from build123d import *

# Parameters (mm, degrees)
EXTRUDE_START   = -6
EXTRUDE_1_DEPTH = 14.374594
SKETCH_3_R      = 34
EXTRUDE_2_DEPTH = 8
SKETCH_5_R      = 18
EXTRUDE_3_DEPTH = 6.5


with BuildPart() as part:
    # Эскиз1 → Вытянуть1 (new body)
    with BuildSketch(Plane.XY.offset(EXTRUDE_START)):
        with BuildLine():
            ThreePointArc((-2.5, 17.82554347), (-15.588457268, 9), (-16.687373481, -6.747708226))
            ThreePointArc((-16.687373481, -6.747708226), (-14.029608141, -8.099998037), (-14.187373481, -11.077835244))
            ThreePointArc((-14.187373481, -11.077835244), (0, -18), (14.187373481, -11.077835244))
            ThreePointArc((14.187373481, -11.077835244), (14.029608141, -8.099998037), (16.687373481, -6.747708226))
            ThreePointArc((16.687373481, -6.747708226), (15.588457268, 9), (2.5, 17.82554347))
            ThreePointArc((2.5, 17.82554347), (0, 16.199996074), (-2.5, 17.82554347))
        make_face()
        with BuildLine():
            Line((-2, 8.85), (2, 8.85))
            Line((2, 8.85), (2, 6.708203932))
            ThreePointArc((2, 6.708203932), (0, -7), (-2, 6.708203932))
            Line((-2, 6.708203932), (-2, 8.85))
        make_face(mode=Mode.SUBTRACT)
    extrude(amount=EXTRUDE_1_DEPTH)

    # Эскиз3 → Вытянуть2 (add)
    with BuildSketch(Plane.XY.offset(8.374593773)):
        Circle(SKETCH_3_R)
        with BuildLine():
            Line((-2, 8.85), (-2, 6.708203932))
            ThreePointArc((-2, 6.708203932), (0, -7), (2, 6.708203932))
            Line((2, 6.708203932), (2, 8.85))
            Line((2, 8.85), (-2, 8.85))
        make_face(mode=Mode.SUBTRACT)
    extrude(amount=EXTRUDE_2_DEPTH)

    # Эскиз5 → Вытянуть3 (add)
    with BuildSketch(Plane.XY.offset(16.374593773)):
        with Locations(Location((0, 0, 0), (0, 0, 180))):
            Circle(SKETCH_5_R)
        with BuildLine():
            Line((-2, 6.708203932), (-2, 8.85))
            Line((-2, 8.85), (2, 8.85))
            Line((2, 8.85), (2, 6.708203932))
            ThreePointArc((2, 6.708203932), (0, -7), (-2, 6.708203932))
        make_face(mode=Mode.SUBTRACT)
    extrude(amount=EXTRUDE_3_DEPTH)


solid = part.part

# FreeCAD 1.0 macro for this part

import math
import FreeCAD as App
import Part
import Sketcher
from FreeCAD import Vector

doc = App.newDocument("Part")
body = doc.addObject("PartDesign::Body", "Body")

# Sketch on XY plane
sketch1 = body.newObject("Sketcher::SketchObject", "Sketch")
sketch1.AttachmentSupport = (doc.getObject("XY_Plane"), [""])
sketch1.MapMode = "FlatFace"
sketch1.AttachmentOffset = App.Placement(Vector(0, 0, -6), App.Rotation())
sketch1.addGeometry([
    Part.ArcOfCircle(Part.Circle(Vector(0, 0, 0), Vector(0, 0, 1), 18), math.radians(98), math.radians(202)),  # 0
    Part.ArcOfCircle(Part.Circle(Vector(-16.4, -9.5, 0), Vector(0, 0, 1), 2.7), math.radians(-36), math.radians(96)),  # 1
    Part.ArcOfCircle(Part.Circle(Vector(0, 0, 0), Vector(0, 0, 1), 18), math.radians(-142), math.radians(-38)),  # 2
    Part.ArcOfCircle(Part.Circle(Vector(16.4, -9.5, 0), Vector(0, 0, 1), 2.7), math.radians(84), math.radians(216)),  # 3
    Part.ArcOfCircle(Part.Circle(Vector(0, 0, 0), Vector(0, 0, 1), 18), math.radians(-22), math.radians(82)),  # 4
    Part.ArcOfCircle(Part.Circle(Vector(0, 18.9, 0), Vector(0, 0, 1), 2.7), math.radians(-156), math.radians(-24)),  # 5
    Part.LineSegment(Vector(-2, 6.7, 0), Vector(-2, 8.8, 0)),  # 6
    Part.LineSegment(Vector(-2, 8.8, 0), Vector(2, 8.8, 0)),  # 7
    Part.LineSegment(Vector(2, 8.8, 0), Vector(2, 6.7, 0)),  # 8
    Part.ArcOfCircle(Part.Circle(Vector(0, 0, 0), Vector(0, 0, 1), 7), math.radians(107), math.radians(433)),  # 9
], False)
sketch1.addConstraint([
    Sketcher.Constraint("Coincident", 0, 2, 1, 2),
    Sketcher.Constraint("Coincident", 1, 1, 2, 1),
    Sketcher.Constraint("Coincident", 2, 2, 3, 2),
    Sketcher.Constraint("Coincident", 3, 1, 4, 1),
    Sketcher.Constraint("Coincident", 4, 2, 5, 2),
    Sketcher.Constraint("Coincident", 5, 1, 0, 1),
    Sketcher.Constraint("Coincident", 6, 2, 7, 1),
    Sketcher.Constraint("Coincident", 7, 2, 8, 1),
    Sketcher.Constraint("Coincident", 8, 2, 9, 2),
    Sketcher.Constraint("Coincident", 9, 1, 6, 1),
    Sketcher.Constraint("Vertical", 6),
    Sketcher.Constraint("Horizontal", 7),
    Sketcher.Constraint("Vertical", 8),
    Sketcher.Constraint("Coincident", 0, 3, -1, 1),
    Sketcher.Constraint("Coincident", 2, 3, -1, 1),
    Sketcher.Constraint("Coincident", 4, 3, -1, 1),
    Sketcher.Constraint("Coincident", 9, 3, -1, 1),
    Sketcher.Constraint("Equal", 0, 2),
    Sketcher.Constraint("Equal", 1, 3),
    Sketcher.Constraint("Equal", 2, 4),
    Sketcher.Constraint("Equal", 3, 5),
    Sketcher.Constraint("Symmetric", 1, 3, 3, 3, -2),
    Sketcher.Constraint("PointOnObject", 5, 3, -2),
    Sketcher.Constraint("Horizontal", 8, 2, 9, 1),
    Sketcher.Constraint("Radius", 0, 18.0),
    Sketcher.Constraint("Radius", 9, 7.0),
    Sketcher.Constraint("DistanceX", 7, 1, 7, 2, 4.0),
    Sketcher.Constraint("DistanceX", 5, 1, 4, 2, 5.0),
    Sketcher.Constraint("DistanceX", 0, 2, 1, 1, 2.5),
    Sketcher.Constraint("DistanceY", -1, 1, 6, 2, 8.85),
    Sketcher.Constraint("Radius", 1, 2.735203),
    Sketcher.Constraint("DistanceY", 1, 3, -1, 1, 9.4676),
])
pad1 = body.newObject("PartDesign::Pad", "Pad")
pad1.Profile = sketch1
pad1.Length = 14.374594

# Sketch on XY plane
sketch2 = body.newObject("Sketcher::SketchObject", "Sketch001")
sketch2.AttachmentSupport = (doc.getObject("XY_Plane"), [""])
sketch2.MapMode = "FlatFace"
sketch2.AttachmentOffset = App.Placement(Vector(0, 0, 8.374594), App.Rotation())
sketch2.addGeometry([
    Part.Circle(Vector(0, 0, 0), Vector(0, 0, 1), 34),  # 0
    Part.LineSegment(Vector(-2, 6.7, 0), Vector(-2, 8.8, 0)),  # 1
    Part.LineSegment(Vector(-2, 8.8, 0), Vector(2, 8.8, 0)),  # 2
    Part.LineSegment(Vector(2, 8.8, 0), Vector(2, 6.7, 0)),  # 3
    Part.ArcOfCircle(Part.Circle(Vector(0, 0, 0), Vector(0, 0, 1), 7), math.radians(107), math.radians(433)),  # 4
], False)
sketch2.addConstraint([
    Sketcher.Constraint("Coincident", 1, 2, 2, 1),
    Sketcher.Constraint("Coincident", 2, 2, 3, 1),
    Sketcher.Constraint("Coincident", 3, 2, 4, 2),
    Sketcher.Constraint("Coincident", 4, 1, 1, 1),
    Sketcher.Constraint("Vertical", 1),
    Sketcher.Constraint("Horizontal", 2),
    Sketcher.Constraint("Vertical", 3),
    Sketcher.Constraint("Coincident", 0, 3, -1, 1),
    Sketcher.Constraint("Coincident", 4, 3, -1, 1),
    Sketcher.Constraint("Horizontal", 3, 2, 4, 1),
    Sketcher.Constraint("Diameter", 0, 68.0),
    Sketcher.Constraint("Radius", 4, 7.0),
    Sketcher.Constraint("DistanceX", 2, 1, 2, 2, 4.0),
    Sketcher.Constraint("DistanceY", -1, 1, 1, 2, 8.85),
])
pad2 = body.newObject("PartDesign::Pad", "Pad001")
pad2.Profile = sketch2
pad2.Length = 8

# Sketch on XY plane
sketch3 = body.newObject("Sketcher::SketchObject", "Sketch002")
sketch3.AttachmentSupport = (doc.getObject("XY_Plane"), [""])
sketch3.MapMode = "FlatFace"
sketch3.AttachmentOffset = App.Placement(Vector(0, 0, 16.374594), App.Rotation())
sketch3.addGeometry([
    Part.Circle(Vector(0, 0, 0), Vector(0, 0, 1), 18),  # 0
    Part.ArcOfCircle(Part.Circle(Vector(0, 0, 0), Vector(0, 0, 1), 7), math.radians(107), math.radians(433)),  # 1
    Part.LineSegment(Vector(-2, 6.7, 0), Vector(-2, 8.8, 0)),  # 2
    Part.LineSegment(Vector(-2, 8.8, 0), Vector(2, 8.8, 0)),  # 3
    Part.LineSegment(Vector(2, 8.8, 0), Vector(2, 6.7, 0)),  # 4
], False)
sketch3.addConstraint([
    Sketcher.Constraint("Coincident", 1, 1, 2, 1),
    Sketcher.Constraint("Coincident", 2, 2, 3, 1),
    Sketcher.Constraint("Coincident", 3, 2, 4, 1),
    Sketcher.Constraint("Coincident", 4, 2, 1, 2),
    Sketcher.Constraint("Vertical", 2),
    Sketcher.Constraint("Horizontal", 3),
    Sketcher.Constraint("Vertical", 4),
    Sketcher.Constraint("Coincident", 0, 3, -1, 1),
    Sketcher.Constraint("Coincident", 1, 3, -1, 1),
    Sketcher.Constraint("Horizontal", 1, 1, 4, 2),
    Sketcher.Constraint("Diameter", 0, 36.0),
    Sketcher.Constraint("Radius", 1, 7.0),
    Sketcher.Constraint("DistanceX", 3, 1, 3, 2, 4.0),
    Sketcher.Constraint("DistanceY", -1, 1, 2, 2, 8.85),
])
pad3 = body.newObject("PartDesign::Pad", "Pad002")
pad3.Profile = sketch3
pad3.Length = 6.5

doc.recompute()
